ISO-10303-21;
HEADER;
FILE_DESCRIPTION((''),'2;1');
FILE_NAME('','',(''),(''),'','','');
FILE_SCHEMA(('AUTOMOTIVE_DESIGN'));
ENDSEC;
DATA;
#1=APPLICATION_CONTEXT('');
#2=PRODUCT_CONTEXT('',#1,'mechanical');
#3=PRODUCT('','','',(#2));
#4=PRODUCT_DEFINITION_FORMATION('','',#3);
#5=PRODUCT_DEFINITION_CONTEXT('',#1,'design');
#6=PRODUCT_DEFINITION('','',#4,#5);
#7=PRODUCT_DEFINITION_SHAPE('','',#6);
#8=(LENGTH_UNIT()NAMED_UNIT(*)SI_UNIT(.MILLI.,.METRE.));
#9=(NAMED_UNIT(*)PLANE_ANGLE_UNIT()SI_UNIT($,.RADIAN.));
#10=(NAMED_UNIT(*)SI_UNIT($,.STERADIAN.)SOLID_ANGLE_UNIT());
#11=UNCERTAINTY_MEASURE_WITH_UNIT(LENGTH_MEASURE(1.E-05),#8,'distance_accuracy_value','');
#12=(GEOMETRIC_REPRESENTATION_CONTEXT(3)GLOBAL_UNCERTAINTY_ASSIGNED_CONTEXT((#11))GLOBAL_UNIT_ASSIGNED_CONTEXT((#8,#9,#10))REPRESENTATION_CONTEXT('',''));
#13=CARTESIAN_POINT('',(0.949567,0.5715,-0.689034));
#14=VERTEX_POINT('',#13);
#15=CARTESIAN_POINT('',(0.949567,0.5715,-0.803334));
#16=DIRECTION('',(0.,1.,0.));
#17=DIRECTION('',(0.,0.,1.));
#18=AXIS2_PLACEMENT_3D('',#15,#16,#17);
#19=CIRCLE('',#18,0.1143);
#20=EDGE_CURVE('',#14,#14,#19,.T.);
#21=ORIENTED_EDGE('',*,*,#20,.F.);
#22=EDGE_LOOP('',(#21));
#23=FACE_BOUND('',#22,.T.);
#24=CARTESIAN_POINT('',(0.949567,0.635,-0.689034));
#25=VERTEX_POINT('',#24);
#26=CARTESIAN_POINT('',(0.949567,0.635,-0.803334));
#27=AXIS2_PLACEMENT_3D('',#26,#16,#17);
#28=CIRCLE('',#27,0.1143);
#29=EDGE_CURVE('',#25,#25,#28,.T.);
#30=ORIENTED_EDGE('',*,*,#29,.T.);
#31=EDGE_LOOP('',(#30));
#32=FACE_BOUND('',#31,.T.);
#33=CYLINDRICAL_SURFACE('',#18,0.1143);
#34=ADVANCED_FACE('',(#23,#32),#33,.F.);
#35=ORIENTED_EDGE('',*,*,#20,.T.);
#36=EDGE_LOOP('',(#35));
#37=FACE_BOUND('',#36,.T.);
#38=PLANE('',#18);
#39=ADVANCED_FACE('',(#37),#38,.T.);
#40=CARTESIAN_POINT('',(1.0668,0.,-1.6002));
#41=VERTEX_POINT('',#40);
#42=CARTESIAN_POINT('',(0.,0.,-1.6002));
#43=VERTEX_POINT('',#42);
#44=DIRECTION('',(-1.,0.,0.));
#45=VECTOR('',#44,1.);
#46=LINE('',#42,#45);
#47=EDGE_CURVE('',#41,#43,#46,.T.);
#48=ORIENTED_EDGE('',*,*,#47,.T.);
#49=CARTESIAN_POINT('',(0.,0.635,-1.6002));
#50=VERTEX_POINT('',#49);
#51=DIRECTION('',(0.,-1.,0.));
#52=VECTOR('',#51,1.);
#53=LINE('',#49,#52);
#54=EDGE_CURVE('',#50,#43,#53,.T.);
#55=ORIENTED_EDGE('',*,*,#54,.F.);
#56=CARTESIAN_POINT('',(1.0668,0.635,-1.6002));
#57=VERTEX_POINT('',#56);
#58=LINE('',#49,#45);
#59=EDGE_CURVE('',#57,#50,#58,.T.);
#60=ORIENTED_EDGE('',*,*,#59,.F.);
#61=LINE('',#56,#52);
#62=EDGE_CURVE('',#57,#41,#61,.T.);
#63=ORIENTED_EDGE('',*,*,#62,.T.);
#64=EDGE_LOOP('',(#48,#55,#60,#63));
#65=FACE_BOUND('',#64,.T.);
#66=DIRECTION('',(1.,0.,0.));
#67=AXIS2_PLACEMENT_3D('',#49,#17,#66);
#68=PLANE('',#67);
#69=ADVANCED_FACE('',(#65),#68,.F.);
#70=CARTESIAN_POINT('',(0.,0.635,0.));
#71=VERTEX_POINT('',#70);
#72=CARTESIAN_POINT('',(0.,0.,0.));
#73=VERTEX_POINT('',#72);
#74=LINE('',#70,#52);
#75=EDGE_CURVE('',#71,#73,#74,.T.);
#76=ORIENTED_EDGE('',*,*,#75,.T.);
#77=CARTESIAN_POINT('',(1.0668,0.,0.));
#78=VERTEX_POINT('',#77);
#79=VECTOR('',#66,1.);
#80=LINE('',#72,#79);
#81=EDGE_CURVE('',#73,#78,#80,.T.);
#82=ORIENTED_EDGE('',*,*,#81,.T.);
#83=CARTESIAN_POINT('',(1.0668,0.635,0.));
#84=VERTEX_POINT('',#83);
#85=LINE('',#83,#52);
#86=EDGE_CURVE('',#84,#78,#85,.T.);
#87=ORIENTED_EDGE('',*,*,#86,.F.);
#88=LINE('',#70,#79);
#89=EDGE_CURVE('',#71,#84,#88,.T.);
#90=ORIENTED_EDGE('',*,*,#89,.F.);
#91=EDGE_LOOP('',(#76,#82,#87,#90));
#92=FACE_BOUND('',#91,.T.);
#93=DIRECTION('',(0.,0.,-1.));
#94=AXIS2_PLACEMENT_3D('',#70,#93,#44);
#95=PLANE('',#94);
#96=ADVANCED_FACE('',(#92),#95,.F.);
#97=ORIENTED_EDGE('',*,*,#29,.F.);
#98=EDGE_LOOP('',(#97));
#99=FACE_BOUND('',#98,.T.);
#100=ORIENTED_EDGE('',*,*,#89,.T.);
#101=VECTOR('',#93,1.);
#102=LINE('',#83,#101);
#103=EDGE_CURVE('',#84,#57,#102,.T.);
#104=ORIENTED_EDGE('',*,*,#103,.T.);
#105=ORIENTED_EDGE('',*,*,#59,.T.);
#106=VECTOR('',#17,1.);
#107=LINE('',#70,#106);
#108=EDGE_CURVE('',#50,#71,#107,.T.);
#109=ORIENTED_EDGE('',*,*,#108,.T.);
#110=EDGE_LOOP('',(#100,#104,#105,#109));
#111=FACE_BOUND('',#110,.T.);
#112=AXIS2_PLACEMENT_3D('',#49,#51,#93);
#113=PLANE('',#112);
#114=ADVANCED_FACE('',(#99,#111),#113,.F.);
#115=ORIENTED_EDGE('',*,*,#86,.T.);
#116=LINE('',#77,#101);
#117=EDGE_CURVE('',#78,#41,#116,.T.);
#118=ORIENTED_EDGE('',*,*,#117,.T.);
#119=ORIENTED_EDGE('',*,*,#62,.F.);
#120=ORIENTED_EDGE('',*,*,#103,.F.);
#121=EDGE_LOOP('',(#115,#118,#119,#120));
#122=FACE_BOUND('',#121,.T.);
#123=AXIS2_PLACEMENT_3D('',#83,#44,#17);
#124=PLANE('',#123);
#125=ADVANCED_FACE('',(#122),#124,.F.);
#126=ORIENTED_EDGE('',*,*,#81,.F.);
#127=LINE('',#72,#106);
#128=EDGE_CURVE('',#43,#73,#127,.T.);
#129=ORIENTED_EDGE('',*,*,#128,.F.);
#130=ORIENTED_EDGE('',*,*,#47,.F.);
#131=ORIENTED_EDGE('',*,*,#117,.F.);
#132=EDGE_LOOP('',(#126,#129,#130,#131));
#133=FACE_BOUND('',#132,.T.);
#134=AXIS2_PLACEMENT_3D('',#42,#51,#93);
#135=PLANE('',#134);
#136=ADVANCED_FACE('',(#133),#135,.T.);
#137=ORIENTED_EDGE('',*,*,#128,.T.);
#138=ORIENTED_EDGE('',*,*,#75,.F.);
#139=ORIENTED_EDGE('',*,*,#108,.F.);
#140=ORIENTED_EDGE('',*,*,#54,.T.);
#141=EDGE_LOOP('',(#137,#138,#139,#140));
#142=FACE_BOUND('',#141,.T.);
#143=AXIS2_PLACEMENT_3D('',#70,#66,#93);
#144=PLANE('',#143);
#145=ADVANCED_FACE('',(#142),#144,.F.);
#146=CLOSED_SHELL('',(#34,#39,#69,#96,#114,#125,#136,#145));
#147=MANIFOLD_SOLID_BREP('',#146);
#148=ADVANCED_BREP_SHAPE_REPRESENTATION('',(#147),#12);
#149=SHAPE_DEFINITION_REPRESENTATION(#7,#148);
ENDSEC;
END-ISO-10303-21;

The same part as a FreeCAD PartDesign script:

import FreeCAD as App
import Part
import Sketcher
Q = App.Units.Quantity


def add_polygon(sketch, points):
    """Adds a closed chain of lines whose ends are joined by coincident constraints."""
    first, n = sketch.GeometryCount, len(points)
    for a, b in zip(points, points[1:] + points[:1]):
        sketch.addGeometry(Part.LineSegment(App.Vector(*a, 0), App.Vector(*b, 0)), False)
    for i in range(n):
        sketch.addConstraint(Sketcher.Constraint("Coincident", first + i, 2, first + (i + 1) % n, 1))

doc = App.newDocument("Part")
params = doc.addObject("Spreadsheet::Sheet", "Params")
for row, (alias, value) in enumerate([
    ("sketch1_width", "0.042 in"),
    ("sketch1_height", "0.063 in"),
    ("pad1_length", "0.025 in"),
    ("sketch2_diameter", "0.009 in"),
    ("pocket1_length", "0.0025 in"),
], start=1):
    params.set(f"A{row}", alias)
    params.set(f"B{row}", "=" + value)
    params.setAlias(f"B{row}", alias)

body = doc.addObject("PartDesign::Body", "Body")

sketch1 = doc.addObject("Sketcher::SketchObject", "Sketch")
body.addObject(sketch1)
sketch1.AttachmentSupport = (doc.XZ_Plane, [""])
sketch1.MapMode = "FlatFace"
add_polygon(sketch1, [(0, -1.6), (0, 0), (1.1, 0), (1.1, -1.6)])
sketch1.addConstraint([
    Sketcher.Constraint("Vertical", 0),
    Sketcher.Constraint("Horizontal", 1),
    Sketcher.Constraint("Vertical", 2),
    Sketcher.Constraint("Horizontal", 3),
    Sketcher.Constraint("Coincident", 0, 2, -1, 1),
    Sketcher.Constraint("DistanceX", 1, 1, 1, 2, Q("0.042 in")),
    Sketcher.Constraint("DistanceY", 0, 1, 0, 2, Q("0.063 in")),
])
sketch1.setExpression("Constraints[9]", "Params.sketch1_width")
sketch1.setExpression("Constraints[10]", "Params.sketch1_height")
pad1 = doc.addObject("PartDesign::Pad", "Pad")
body.addObject(pad1)
pad1.Profile = sketch1
pad1.setExpression("Length", "Params.pad1_length")
pad1.Reversed = True

sketch2 = doc.addObject("Sketcher::SketchObject", "Sketch001")
body.addObject(sketch2)
sketch2.AttachmentSupport = (doc.XZ_Plane, [""])
sketch2.MapMode = "FlatFace"
sketch2.AttachmentOffset = App.Placement(App.Vector(0, 0, -0.025 * 25.4), App.Rotation())
sketch2.addGeometry(Part.Circle(App.Vector(0.95, -0.8, 0), App.Vector(0, 0, 1), 0.11), False)
sketch2.addConstraint([
    Sketcher.Constraint("Diameter", 0, Q("0.009 in")),
    Sketcher.Constraint("DistanceX", -1, 1, 0, 3, Q("0.949567 mm")),
    Sketcher.Constraint("DistanceY", 0, 3, -1, 1, Q("0.803334 mm")),
])
sketch2.setExpression("Constraints[0]", "Params.sketch2_diameter")
pocket1 = doc.addObject("PartDesign::Pocket", "Pocket")
body.addObject(pocket1)
pocket1.Profile = sketch2
pocket1.setExpression("Length", "Params.pocket1_length")
pocket1.Reversed = True

doc.recompute()
